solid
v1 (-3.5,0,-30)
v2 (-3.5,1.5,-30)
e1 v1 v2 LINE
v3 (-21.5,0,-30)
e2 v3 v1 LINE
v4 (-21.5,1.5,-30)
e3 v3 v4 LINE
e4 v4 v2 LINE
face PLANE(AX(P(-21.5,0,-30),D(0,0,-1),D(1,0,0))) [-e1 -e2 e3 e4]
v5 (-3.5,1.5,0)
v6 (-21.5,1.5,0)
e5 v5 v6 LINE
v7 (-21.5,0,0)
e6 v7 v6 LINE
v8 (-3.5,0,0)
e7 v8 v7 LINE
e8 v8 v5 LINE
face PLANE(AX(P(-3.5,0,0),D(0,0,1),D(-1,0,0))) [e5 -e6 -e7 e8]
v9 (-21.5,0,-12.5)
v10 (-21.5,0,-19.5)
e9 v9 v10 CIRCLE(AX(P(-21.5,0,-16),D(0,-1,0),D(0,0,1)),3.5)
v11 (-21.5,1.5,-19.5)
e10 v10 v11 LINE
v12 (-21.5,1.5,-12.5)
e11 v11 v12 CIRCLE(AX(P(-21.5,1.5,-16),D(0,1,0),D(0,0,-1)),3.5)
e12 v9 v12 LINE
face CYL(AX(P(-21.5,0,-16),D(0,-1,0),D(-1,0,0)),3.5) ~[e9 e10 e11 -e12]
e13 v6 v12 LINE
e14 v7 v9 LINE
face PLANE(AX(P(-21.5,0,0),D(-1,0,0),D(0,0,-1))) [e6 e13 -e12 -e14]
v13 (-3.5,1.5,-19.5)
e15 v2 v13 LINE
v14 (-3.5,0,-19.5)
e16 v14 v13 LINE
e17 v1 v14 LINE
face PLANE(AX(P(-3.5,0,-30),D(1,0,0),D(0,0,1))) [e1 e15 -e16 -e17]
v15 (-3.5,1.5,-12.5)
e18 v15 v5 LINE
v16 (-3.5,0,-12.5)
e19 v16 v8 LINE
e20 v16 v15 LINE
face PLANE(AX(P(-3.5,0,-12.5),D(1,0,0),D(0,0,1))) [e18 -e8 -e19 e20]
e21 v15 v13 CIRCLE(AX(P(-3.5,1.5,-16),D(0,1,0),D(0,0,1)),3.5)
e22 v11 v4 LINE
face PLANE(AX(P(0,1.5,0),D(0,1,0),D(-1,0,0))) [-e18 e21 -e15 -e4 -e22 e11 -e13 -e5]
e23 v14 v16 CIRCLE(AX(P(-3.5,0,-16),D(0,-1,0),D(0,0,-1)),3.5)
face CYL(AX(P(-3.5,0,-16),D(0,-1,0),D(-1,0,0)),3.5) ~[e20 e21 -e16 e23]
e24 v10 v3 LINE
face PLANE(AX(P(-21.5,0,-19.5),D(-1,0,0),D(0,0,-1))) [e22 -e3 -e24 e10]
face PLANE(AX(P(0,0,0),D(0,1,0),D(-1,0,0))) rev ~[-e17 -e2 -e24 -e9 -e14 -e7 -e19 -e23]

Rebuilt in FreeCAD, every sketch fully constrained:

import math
import FreeCAD as App
import Part
import Sketcher

V = App.Vector
Q = App.Units.Quantity

doc = App.newDocument("Part")
body = doc.addObject("PartDesign::Body", "Body")

# Sketch on XZ plane
sketch1 = doc.addObject("Sketcher::SketchObject", "Sketch")
body.addObject(sketch1)
sketch1.AttachmentSupport = (doc.XZ_Plane, [""])
sketch1.MapMode = "FlatFace"
sketch1.addGeometry(Part.LineSegment(V(-21.5, 0, 0), V(-3.5, 0, 0)), False)
sketch1.addGeometry(Part.LineSegment(V(-3.5, 0, 0), V(-3.5, -12.5, 0)), False)
sketch1.addGeometry(Part.ArcOfCircle(Part.Circle(V(-3.5, -16, 0), V(0, 0, 1), 3.5), math.radians(-90), math.radians(90)), False)
sketch1.addGeometry(Part.LineSegment(V(-3.5, -19.5, 0), V(-3.5, -30, 0)), False)
sketch1.addGeometry(Part.LineSegment(V(-3.5, -30, 0), V(-21.5, -30, 0)), False)
sketch1.addGeometry(Part.LineSegment(V(-21.5, -30, 0), V(-21.5, -19.5, 0)), False)
sketch1.addGeometry(Part.ArcOfCircle(Part.Circle(V(-21.5, -16, 0), V(0, 0, 1), 3.5), math.radians(90), math.radians(270)), False)
sketch1.addGeometry(Part.LineSegment(V(-21.5, -12.5, 0), V(-21.5, 0, 0)), False)
sketch1.addConstraint(Sketcher.Constraint("Coincident", 0, 2, 1, 1))
sketch1.addConstraint(Sketcher.Constraint("Coincident", 1, 2, 2, 2))
sketch1.addConstraint(Sketcher.Constraint("Coincident", 2, 1, 3, 1))
sketch1.addConstraint(Sketcher.Constraint("Coincident", 3, 2, 4, 1))
sketch1.addConstraint(Sketcher.Constraint("Coincident", 4, 2, 5, 1))
sketch1.addConstraint(Sketcher.Constraint("Coincident", 5, 2, 6, 2))
sketch1.addConstraint(Sketcher.Constraint("Coincident", 6, 1, 7, 1))
sketch1.addConstraint(Sketcher.Constraint("Coincident", 7, 2, 0, 1))
sketch1.addConstraint(Sketcher.Constraint("Horizontal", 0))
sketch1.addConstraint(Sketcher.Constraint("Vertical", 1))
sketch1.addConstraint(Sketcher.Constraint("Vertical", 3))
sketch1.addConstraint(Sketcher.Constraint("Horizontal", 4))
sketch1.addConstraint(Sketcher.Constraint("Vertical", 5))
sketch1.addConstraint(Sketcher.Constraint("Vertical", 7))
sketch1.addConstraint(Sketcher.Constraint("Equal", 2, 6))
sketch1.addConstraint(Sketcher.Constraint("PointOnObject", 0, 2, -1))
sketch1.addConstraint(Sketcher.Constraint("Horizontal", 2, 3, 6, 3))
sketch1.addConstraint(Sketcher.Constraint("Vertical", 2, 3, 0, 2))
sketch1.addConstraint(Sketcher.Constraint("Vertical", 1, 2, 2, 1))
sketch1.addConstraint(Sketcher.Constraint("Vertical", 6, 3, 4, 2))
sketch1.addConstraint(Sketcher.Constraint("Vertical", 5, 2, 6, 1))
sketch1.addConstraint(Sketcher.Constraint("Radius", 2, Q("3.5 mm")))
sketch1.addConstraint(Sketcher.Constraint("DistanceY", 2, 3, -1, 1, Q("16 mm")))
sketch1.addConstraint(Sketcher.Constraint("DistanceY", 3, 2, -1, 1, Q("30 mm")))
sketch1.addConstraint(Sketcher.Constraint("DistanceX", 0, 1, 0, 2, Q("18 mm")))
sketch1.addConstraint(Sketcher.Constraint("DistanceX", 2, 3, -1, 1, Q("3.5 mm")))
pad1 = doc.addObject("PartDesign::Pad", "Pad")
body.addObject(pad1)
pad1.Profile = sketch1
pad1.Length = 1.5
pad1.Reversed = True

doc.recompute()
